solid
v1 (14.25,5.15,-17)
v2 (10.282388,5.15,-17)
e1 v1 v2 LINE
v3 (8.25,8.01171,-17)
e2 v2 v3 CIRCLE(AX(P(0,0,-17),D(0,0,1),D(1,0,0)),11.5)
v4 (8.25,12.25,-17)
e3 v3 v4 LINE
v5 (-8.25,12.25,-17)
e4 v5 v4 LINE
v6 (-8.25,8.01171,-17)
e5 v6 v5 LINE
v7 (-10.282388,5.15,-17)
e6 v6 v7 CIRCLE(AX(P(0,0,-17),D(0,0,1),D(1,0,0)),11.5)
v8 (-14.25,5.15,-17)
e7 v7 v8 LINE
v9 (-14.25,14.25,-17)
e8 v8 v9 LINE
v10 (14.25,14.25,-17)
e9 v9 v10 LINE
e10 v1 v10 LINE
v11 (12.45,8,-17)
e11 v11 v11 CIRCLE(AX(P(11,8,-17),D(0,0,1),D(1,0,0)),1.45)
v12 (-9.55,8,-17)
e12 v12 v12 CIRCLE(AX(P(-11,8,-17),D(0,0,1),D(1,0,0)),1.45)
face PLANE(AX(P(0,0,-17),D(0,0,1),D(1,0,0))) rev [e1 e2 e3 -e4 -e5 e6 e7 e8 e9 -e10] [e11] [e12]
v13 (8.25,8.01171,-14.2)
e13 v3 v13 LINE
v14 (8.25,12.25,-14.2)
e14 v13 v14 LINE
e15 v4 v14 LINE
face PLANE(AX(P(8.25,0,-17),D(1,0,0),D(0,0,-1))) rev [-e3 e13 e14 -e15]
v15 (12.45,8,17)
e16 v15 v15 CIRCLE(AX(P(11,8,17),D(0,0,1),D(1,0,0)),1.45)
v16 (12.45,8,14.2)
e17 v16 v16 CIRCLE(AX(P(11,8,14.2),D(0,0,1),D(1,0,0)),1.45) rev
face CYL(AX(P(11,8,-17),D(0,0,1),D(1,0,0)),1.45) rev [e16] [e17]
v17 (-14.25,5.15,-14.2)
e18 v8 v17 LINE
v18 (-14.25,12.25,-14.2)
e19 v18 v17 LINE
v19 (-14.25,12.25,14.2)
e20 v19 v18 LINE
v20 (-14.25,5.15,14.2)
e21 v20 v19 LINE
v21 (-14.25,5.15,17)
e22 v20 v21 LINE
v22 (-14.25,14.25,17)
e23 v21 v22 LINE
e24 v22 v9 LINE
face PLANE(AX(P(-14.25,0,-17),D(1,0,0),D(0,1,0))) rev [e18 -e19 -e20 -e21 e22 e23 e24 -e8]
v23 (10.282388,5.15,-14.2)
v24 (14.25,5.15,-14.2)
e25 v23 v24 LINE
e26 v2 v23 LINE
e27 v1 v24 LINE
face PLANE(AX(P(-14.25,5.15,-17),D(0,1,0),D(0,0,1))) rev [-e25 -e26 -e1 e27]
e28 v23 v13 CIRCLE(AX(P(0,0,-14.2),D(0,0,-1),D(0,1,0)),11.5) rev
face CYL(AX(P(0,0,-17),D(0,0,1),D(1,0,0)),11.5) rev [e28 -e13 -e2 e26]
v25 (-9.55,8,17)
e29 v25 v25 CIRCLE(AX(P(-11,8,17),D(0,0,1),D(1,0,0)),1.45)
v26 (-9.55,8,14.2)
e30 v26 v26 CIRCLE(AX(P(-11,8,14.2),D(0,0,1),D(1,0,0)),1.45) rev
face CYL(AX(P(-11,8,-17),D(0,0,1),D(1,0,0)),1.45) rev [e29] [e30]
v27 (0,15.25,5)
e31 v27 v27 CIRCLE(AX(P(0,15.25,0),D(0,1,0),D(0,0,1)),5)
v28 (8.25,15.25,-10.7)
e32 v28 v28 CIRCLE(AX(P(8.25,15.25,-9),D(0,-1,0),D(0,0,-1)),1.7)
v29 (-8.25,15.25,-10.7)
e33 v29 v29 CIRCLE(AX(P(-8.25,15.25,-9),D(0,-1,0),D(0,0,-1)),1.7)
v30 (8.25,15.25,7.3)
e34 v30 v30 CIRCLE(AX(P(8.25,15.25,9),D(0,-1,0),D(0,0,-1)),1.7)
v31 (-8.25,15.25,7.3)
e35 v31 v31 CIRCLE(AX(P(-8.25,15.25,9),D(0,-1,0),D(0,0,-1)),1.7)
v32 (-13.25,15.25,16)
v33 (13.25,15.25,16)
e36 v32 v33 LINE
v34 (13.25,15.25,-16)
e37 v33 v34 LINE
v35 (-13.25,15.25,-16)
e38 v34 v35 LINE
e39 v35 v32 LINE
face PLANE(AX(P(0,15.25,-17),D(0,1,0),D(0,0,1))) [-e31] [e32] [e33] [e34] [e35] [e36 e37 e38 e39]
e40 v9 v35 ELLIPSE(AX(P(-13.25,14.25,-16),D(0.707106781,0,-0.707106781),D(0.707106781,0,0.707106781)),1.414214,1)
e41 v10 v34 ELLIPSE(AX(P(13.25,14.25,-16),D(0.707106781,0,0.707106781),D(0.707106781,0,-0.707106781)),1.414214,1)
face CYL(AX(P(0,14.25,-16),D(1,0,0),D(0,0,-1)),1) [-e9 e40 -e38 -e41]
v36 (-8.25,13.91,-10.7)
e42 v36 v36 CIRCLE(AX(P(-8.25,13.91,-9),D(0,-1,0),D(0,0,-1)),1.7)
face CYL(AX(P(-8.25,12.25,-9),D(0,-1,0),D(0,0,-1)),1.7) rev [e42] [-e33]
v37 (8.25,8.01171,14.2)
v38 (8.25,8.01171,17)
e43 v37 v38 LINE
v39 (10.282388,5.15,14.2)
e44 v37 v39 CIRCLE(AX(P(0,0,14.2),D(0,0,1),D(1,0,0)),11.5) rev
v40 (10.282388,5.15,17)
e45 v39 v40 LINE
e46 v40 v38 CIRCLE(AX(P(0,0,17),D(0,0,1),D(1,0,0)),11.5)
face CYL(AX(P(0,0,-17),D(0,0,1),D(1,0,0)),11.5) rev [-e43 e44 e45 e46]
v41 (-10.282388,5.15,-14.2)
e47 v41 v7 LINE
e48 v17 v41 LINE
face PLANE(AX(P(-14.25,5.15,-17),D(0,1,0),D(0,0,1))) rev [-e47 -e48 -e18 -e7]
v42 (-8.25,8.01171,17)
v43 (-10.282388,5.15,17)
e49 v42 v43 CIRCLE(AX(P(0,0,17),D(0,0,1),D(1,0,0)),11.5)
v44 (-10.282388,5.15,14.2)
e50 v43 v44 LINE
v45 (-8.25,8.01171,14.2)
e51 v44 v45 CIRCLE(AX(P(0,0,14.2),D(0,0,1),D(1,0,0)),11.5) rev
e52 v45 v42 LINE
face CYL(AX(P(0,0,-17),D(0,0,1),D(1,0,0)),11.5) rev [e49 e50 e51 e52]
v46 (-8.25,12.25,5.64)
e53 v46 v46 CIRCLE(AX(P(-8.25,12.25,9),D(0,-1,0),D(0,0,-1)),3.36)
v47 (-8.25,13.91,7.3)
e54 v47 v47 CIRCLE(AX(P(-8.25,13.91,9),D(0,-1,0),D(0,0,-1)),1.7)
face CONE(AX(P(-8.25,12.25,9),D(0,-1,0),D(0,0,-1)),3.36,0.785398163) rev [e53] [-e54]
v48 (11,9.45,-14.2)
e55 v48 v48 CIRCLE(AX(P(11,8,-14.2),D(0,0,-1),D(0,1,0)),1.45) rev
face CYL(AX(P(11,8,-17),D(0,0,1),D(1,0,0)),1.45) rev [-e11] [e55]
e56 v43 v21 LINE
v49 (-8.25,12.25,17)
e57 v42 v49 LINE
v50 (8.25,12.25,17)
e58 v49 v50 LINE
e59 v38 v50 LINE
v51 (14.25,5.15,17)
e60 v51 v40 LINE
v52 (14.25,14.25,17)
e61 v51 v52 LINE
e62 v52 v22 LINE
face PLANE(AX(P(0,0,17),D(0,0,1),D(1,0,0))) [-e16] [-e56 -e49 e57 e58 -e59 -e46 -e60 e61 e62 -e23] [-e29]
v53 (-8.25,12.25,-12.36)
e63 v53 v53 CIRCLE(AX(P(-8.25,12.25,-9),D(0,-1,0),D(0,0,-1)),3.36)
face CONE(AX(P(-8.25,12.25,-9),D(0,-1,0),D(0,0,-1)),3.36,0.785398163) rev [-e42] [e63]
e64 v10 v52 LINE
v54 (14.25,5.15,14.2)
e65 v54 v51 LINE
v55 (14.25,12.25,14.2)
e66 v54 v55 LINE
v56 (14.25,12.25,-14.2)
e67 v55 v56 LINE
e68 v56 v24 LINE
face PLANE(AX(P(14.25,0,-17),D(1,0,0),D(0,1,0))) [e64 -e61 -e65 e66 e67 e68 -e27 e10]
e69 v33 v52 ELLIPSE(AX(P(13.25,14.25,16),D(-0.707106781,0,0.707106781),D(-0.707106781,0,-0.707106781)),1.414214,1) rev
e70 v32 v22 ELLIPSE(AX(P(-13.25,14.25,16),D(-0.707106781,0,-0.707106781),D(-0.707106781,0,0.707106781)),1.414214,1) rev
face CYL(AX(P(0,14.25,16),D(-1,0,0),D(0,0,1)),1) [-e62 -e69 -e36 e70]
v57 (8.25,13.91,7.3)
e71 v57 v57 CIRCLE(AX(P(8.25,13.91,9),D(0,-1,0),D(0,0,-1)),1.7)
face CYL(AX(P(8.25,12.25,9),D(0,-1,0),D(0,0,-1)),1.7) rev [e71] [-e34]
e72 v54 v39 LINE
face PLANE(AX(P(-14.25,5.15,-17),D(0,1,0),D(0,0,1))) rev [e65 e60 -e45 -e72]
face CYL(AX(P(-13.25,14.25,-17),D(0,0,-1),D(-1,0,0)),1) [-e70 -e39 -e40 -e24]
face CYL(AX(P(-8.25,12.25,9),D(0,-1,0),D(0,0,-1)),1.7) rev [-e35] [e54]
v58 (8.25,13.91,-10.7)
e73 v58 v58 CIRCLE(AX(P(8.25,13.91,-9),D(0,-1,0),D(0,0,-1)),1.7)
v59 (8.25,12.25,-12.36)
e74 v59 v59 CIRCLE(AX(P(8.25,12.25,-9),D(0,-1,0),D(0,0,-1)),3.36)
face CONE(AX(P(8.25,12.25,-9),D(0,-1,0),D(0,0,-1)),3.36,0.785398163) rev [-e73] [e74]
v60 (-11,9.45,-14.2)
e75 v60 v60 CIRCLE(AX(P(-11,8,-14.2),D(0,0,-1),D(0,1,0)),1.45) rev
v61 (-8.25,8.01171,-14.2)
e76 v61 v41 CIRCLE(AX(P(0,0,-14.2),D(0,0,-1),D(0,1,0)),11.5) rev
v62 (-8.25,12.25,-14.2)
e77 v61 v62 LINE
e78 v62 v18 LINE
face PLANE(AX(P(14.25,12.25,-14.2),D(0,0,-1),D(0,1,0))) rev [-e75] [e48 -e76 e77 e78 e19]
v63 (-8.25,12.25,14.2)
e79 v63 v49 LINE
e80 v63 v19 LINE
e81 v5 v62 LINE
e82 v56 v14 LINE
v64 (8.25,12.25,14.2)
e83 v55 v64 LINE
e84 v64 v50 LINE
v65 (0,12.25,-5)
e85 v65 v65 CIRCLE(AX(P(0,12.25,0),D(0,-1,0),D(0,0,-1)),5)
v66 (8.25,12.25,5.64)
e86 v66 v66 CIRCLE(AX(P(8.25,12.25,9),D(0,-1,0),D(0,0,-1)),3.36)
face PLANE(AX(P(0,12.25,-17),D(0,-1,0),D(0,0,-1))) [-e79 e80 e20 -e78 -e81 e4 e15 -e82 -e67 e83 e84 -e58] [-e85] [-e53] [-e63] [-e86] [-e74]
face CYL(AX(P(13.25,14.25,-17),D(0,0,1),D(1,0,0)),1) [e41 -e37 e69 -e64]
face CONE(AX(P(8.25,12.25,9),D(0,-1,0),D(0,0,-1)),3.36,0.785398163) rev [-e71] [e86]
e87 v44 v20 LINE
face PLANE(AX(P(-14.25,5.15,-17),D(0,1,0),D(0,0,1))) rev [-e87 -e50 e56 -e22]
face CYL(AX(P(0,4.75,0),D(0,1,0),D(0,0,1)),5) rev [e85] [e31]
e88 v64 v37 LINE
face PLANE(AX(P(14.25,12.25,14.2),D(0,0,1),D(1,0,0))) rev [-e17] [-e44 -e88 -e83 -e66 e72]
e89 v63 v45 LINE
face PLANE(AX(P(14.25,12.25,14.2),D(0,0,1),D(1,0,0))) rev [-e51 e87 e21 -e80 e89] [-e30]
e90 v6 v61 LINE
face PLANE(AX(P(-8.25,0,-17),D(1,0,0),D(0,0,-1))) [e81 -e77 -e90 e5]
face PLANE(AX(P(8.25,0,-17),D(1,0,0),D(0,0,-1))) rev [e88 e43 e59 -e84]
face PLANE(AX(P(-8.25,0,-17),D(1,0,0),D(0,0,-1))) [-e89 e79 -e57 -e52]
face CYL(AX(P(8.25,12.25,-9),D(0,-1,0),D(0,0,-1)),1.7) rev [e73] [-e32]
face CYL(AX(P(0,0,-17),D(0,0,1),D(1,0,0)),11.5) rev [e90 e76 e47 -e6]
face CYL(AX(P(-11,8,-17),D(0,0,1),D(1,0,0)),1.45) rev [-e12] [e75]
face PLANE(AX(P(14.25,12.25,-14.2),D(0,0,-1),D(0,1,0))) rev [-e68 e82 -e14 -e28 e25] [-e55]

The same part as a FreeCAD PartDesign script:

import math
import FreeCAD as App
import Part
import Sketcher
Q = App.Units.Quantity


def edges_at(feature, points):
    """Names of the edges that pass closest to the given points."""
    edges = feature.Shape.Edges
    near = lambda p: min(range(len(edges)), key=lambda i: edges[i].distToShape(Part.Vertex(*p))[0])
    return sorted({f"Edge{near(p) + 1}" for p in points})


def add_polygon(sketch, points):
    """Adds a closed chain of lines whose ends are joined by coincident constraints."""
    first, n = sketch.GeometryCount, len(points)
    for a, b in zip(points, points[1:] + points[:1]):
        sketch.addGeometry(Part.LineSegment(App.Vector(*a, 0), App.Vector(*b, 0)), False)
    for i in range(n):
        sketch.addConstraint(Sketcher.Constraint("Coincident", first + i, 2, first + (i + 1) % n, 1))

doc = App.newDocument("Part")
params = doc.addObject("Spreadsheet::Sheet", "Params")
for row, (alias, value) in enumerate([
    ("sketch1_diameter", "2.9 mm"),
    ("sketch1_radius", "11.5 mm"),
    ("sketch1_width", "16.5 mm"),
    ("sketch1_width2", "28.5 mm"),
    ("sketch1_height", "10.5 mm"),
    ("pad1_length", "17 mm"),
    ("pad1_length2", "17 mm"),
    ("sketch2_width", "7.5 mm"),
    ("sketch2_height", "28.4 mm"),
    ("sketch3_diameter", "10 mm"),
    ("sketch4_width", "3 mm"),
    ("sketch4_height", "1.7 mm"),
    ("sketch4_width2", "1.34 mm"),
    ("groove_angle", "360 deg"),
    ("linearpattern_pitch", "16.5 mm"),
    ("linearpattern2_pitch", "18 mm"),
    ("linearpattern3_pitch", "24.418231 mm"),
    ("fillet_radius", "1 mm"),
    ("sketch5_width", "28.5 mm"),
    ("sketch5_height", "0.4 mm"),
], start=1):
    params.set(f"A{row}", alias)
    params.set(f"B{row}", "=" + value)
    params.setAlias(f"B{row}", alias)

body = doc.addObject("PartDesign::Body", "Body")

sketch1 = body.newObject("Sketcher::SketchObject", "Sketch")
sketch1.AttachmentSupport = (doc.getObject("XY_Plane"), [""])
sketch1.MapMode = "FlatFace"
sketch1.addGeometry([
    Part.LineSegment(App.Vector(-14.2, 15.2, 0), App.Vector(-14.2, 4.8, 0)),
    Part.LineSegment(App.Vector(-14.2, 4.8, 0), App.Vector(-10.5, 4.8, 0)),
    Part.ArcOfCircle(Part.Circle(App.Vector(0, 0, 0), App.Vector(0, 0, 1), 11.5), math.radians(135.84), math.radians(155.6)),
    Part.LineSegment(App.Vector(-8.2, 8, 0), App.Vector(-8.2, 12.2, 0)),
    Part.LineSegment(App.Vector(-8.2, 12.2, 0), App.Vector(8.2, 12.2, 0)),
    Part.LineSegment(App.Vector(8.2, 12.2, 0), App.Vector(8.2, 8, 0)),
    Part.ArcOfCircle(Part.Circle(App.Vector(0, 0, 0), App.Vector(0, 0, 1), 11.5), math.radians(24.4), math.radians(44.16)),
    Part.LineSegment(App.Vector(10.5, 4.8, 0), App.Vector(14.2, 4.8, 0)),
    Part.LineSegment(App.Vector(14.2, 4.8, 0), App.Vector(14.2, 15.2, 0)),
    Part.LineSegment(App.Vector(14.2, 15.2, 0), App.Vector(-14.2, 15.2, 0)),
    Part.Circle(App.Vector(-11, 8, 0), App.Vector(0, 0, 1), 1.4),
    Part.Circle(App.Vector(11, 8, 0), App.Vector(0, 0, 1), 1.4),
], False)
sketch1.addConstraint([
    Sketcher.Constraint("Coincident", 0, 2, 1, 1),
    Sketcher.Constraint("Coincident", 1, 2, 2, 2),
    Sketcher.Constraint("Coincident", 2, 1, 3, 1),
    Sketcher.Constraint("Coincident", 3, 2, 4, 1),
    Sketcher.Constraint("Coincident", 4, 2, 5, 1),
    Sketcher.Constraint("Coincident", 5, 2, 6, 2),
    Sketcher.Constraint("Coincident", 6, 1, 7, 1),
    Sketcher.Constraint("Coincident", 7, 2, 8, 1),
    Sketcher.Constraint("Coincident", 8, 2, 9, 1),
    Sketcher.Constraint("Coincident", 9, 2, 0, 1),
    Sketcher.Constraint("Vertical", 0),
    Sketcher.Constraint("Horizontal", 1),
    Sketcher.Constraint("Vertical", 3),
    Sketcher.Constraint("Horizontal", 4),
    Sketcher.Constraint("Vertical", 5),
    Sketcher.Constraint("Horizontal", 7),
    Sketcher.Constraint("Vertical", 8),
    Sketcher.Constraint("Horizontal", 9),
    Sketcher.Constraint("Coincident", 2, 3, -1, 1),
    Sketcher.Constraint("Coincident", 6, 3, -1, 1),
    Sketcher.Constraint("Equal", 2, 6),
    Sketcher.Constraint("Equal", 10, 11),
    Sketcher.Constraint("Symmetric", 10, 3, 11, 3, -2),
    Sketcher.Constraint("Symmetric", 0, 2, 7, 2, -2),
    Sketcher.Constraint("Horizontal", 2, 1, 5, 2),
    Sketcher.Constraint("Diameter", 10, 2.9),
    Sketcher.Constraint("Radius", 2, 11.5),
    Sketcher.Constraint("DistanceX", 4, 1, 4, 2, 16.5),
    Sketcher.Constraint("DistanceX", 9, 2, 9, 1, 28.5),
    Sketcher.Constraint("DistanceY", 0, 2, 0, 1, 10.5),
    Sketcher.Constraint("DistanceX", 10, 3, -1, 1, 11.0),
    Sketcher.Constraint("DistanceY", -1, 1, 10, 3, 8.0),
    Sketcher.Constraint("DistanceY", 4, 2, 8, 2, 3.0),
    Sketcher.Constraint("DistanceY", -1, 1, 0, 2, 4.75),
])
sketch1.setExpression("Constraints[25]", "Params.sketch1_diameter")
sketch1.setExpression("Constraints[26]", "Params.sketch1_radius")
sketch1.setExpression("Constraints[27]", "Params.sketch1_width")
sketch1.setExpression("Constraints[28]", "Params.sketch1_width2")
sketch1.setExpression("Constraints[29]", "Params.sketch1_height")
pad1 = body.newObject("PartDesign::Pad", "Pad")
pad1.Profile = sketch1
pad1.Type = "TwoLengths"
pad1.setExpression("Length", "Params.pad1_length")
pad1.setExpression("Length2", "Params.pad1_length2")

sketch2 = body.newObject("Sketcher::SketchObject", "Sketch001")
sketch2.AttachmentSupport = (doc.getObject("YZ_Plane"), [""])
sketch2.MapMode = "FlatFace"
sketch2.AttachmentOffset = App.Placement(App.Vector(0, 0, -14.25), App.Rotation())
add_polygon(sketch2, [(12, -14), (5, -14), (5, 14), (12, 14)])
sketch2.addConstraint([
    Sketcher.Constraint("Horizontal", 0),
    Sketcher.Constraint("Vertical", 1),
    Sketcher.Constraint("Horizontal", 2),
    Sketcher.Constraint("Vertical", 3),
    Sketcher.Constraint("DistanceX", 0, 2, 0, 1, 7.5),
    Sketcher.Constraint("DistanceY", 1, 1, 1, 2, 28.4),
    Sketcher.Constraint("DistanceY", 0, 2, -1, 1, 14.2),
    Sketcher.Constraint("DistanceX", -1, 1, 0, 2, 4.75),
])
sketch2.setExpression("Constraints[8]", "Params.sketch2_width")
sketch2.setExpression("Constraints[9]", "Params.sketch2_height")
pocket1 = body.newObject("PartDesign::Pocket", "Pocket")
pocket1.Profile = sketch2
pocket1.Type = "ThroughAll"
pocket1.Reversed = True

sketch3 = body.newObject("Sketcher::SketchObject", "Sketch002")
sketch3.AttachmentSupport = (doc.getObject("XZ_Plane"), [""])
sketch3.MapMode = "FlatFace"
sketch3.AttachmentOffset = App.Placement(App.Vector(0, 0, -15.25), App.Rotation())
sketch3.addGeometry(Part.Circle(App.Vector(0, 0, 0), App.Vector(0, 0, 1), 5), False)
sketch3.addConstraint([
    Sketcher.Constraint("Coincident", 0, 3, -1, 1),
    Sketcher.Constraint("Diameter", 0, 10.0),
])
sketch3.setExpression("Constraints[1]", "Params.sketch3_diameter")
pocket2 = body.newObject("PartDesign::Pocket", "Pocket001")
pocket2.Profile = sketch3
pocket2.Type = "ThroughAll"
pocket2.Reversed = True

sketch4 = body.newObject("Sketcher::SketchObject", "Sketch003")
sketch4.AttachmentSupport = (doc.getObject("YZ_Plane"), [""])
sketch4.MapMode = "FlatFace"
sketch4.AttachmentOffset = App.Placement(App.Vector(0, 0, -8.25), App.Rotation())
add_polygon(sketch4, [(15.2, 9), (12.2, 9), (12.2, 5.6), (13.9, 7.3), (15.2, 7.3)])
sketch4.addGeometry(Part.LineSegment(App.Vector(12.2, 9, 0), App.Vector(15.2, 9, 0)), True)
sketch4.addConstraint([
    Sketcher.Constraint("Horizontal", 0),
    Sketcher.Constraint("Vertical", 1),
    Sketcher.Constraint("Horizontal", 3),
    Sketcher.Constraint("Vertical", 4),
    Sketcher.Constraint("Horizontal", 5),
    Sketcher.Constraint("Coincident", 5, 1, 0, 2),
    Sketcher.Constraint("Vertical", 3, 2, 5, 2),
    Sketcher.Constraint("DistanceX", 0, 2, 0, 1, 3.0),
    Sketcher.Constraint("Angle", 2, Q("45 deg")),
    Sketcher.Constraint("DistanceY", 4, 1, 4, 2, 1.7),
    Sketcher.Constraint("DistanceY", -1, 1, 0, 2, 9.0),
    Sketcher.Constraint("DistanceX", 3, 1, 3, 2, 1.34),
    Sketcher.Constraint("DistanceX", -1, 1, 0, 2, 12.25),
])
sketch4.setExpression("Constraints[12]", "Params.sketch4_width")
sketch4.setExpression("Constraints[14]", "Params.sketch4_height")
sketch4.setExpression("Constraints[16]", "Params.sketch4_width2")
groove = body.newObject("PartDesign::Groove", "Groove")
groove.Profile = sketch4
groove.ReferenceAxis = (sketch4, ["Axis0"])
groove.setExpression("Angle", "Params.groove_angle")
doc.recompute()

linearpattern = body.newObject("PartDesign::LinearPattern", "LinearPattern")
linearpattern.Originals = [groove]
linearpattern.Direction = (doc.getObject("X_Axis"), [""])
linearpattern.Mode = "offset"
linearpattern.setExpression("Offset", "Params.linearpattern_pitch")
linearpattern.Occurrences = 2
body.Tip = linearpattern
doc.recompute()

linearpattern2 = body.newObject("PartDesign::LinearPattern", "LinearPattern001")
linearpattern2.Originals = [groove]
linearpattern2.Direction = (doc.getObject("Z_Axis"), [""])
linearpattern2.Mode = "offset"
linearpattern2.setExpression("Offset", "Params.linearpattern2_pitch")
linearpattern2.Occurrences = 2
linearpattern2.Reversed = True
body.Tip = linearpattern2
doc.recompute()

datumline = body.newObject("PartDesign::Line", "DatumLine")
datumline.Placement = App.Placement(App.Vector(0, 0, 0), App.Rotation(App.Vector(0, 0, 1), App.Vector(0.675724629, 0, -0.73715414)))
linearpattern3 = body.newObject("PartDesign::LinearPattern", "LinearPattern002")
linearpattern3.Originals = [groove]
linearpattern3.Direction = (datumline, [""])
linearpattern3.Mode = "offset"
linearpattern3.setExpression("Offset", "Params.linearpattern3_pitch")
linearpattern3.Occurrences = 2
body.Tip = linearpattern3
doc.recompute()

fillet = body.newObject("PartDesign::Fillet", "Fillet")
fillet.Base = (linearpattern3, edges_at(linearpattern3, [
    (-14.25, 15.25, 0),
    (14.25, 15.25, 0),
    (0, 15.25, -17),
    (0, 15.25, 17),
]))
fillet.setExpression("Radius", "Params.fillet_radius")

sketch5 = body.newObject("Sketcher::SketchObject", "Sketch004")
sketch5.AttachmentSupport = (doc.getObject("XY_Plane"), [""])
sketch5.MapMode = "FlatFace"
sketch5.AttachmentOffset = App.Placement(App.Vector(0, 0, 17), App.Rotation())
add_polygon(sketch5, [(-14.25, 5.15), (-14.25, 4.75), (14.25, 4.75), (14.25, 5.15)])
sketch5.addConstraint([
    Sketcher.Constraint("Vertical", 0),
    Sketcher.Constraint("Horizontal", 1),
    Sketcher.Constraint("Vertical", 2),
    Sketcher.Constraint("Horizontal", 3),
    Sketcher.Constraint("DistanceX", 1, 1, 1, 2, 28.5),
    Sketcher.Constraint("DistanceY", 0, 2, 0, 1, 0.4),
    Sketcher.Constraint("DistanceX", 0, 2, -1, 1, 14.25),
    Sketcher.Constraint("DistanceY", -1, 1, 0, 2, 4.75),
])
sketch5.setExpression("Constraints[8]", "Params.sketch5_width")
sketch5.setExpression("Constraints[9]", "Params.sketch5_height")
pocket3 = body.newObject("PartDesign::Pocket", "Pocket002")
pocket3.Profile = sketch5
pocket3.Type = "ThroughAll"

doc.recompute()
